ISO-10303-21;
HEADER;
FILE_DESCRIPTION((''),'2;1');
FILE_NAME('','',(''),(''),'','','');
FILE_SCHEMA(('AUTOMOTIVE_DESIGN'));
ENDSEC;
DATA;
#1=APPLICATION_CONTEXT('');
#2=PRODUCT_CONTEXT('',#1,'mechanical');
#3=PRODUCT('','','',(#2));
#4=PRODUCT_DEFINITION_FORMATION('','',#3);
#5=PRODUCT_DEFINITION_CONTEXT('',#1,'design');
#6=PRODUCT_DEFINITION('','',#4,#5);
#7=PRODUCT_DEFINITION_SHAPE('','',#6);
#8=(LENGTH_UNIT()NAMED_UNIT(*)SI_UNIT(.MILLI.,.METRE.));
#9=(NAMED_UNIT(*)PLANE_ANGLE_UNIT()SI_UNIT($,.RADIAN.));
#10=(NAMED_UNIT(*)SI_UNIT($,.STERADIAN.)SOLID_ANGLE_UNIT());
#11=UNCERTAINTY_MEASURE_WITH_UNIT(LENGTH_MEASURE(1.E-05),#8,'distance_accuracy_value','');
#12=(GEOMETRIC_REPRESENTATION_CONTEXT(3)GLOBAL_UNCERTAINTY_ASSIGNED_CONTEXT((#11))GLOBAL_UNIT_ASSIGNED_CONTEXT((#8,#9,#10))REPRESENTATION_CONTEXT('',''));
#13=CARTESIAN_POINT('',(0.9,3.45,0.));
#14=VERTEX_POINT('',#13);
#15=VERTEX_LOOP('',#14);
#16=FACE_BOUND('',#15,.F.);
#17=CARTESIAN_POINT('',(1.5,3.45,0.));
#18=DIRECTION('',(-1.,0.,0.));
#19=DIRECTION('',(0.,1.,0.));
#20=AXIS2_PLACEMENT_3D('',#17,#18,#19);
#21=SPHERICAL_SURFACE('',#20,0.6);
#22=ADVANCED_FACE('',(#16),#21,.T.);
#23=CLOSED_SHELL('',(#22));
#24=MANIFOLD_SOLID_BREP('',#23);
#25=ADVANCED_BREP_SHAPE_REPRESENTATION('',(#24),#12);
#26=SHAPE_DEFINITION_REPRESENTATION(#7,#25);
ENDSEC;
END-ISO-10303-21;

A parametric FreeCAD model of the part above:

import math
import FreeCAD as App
import Part
import Sketcher
Q = App.Units.Quantity

doc = App.newDocument("Part")
body = doc.addObject("PartDesign::Body", "Body")

sketch1 = doc.addObject("Sketcher::SketchObject", "Sketch")
body.addObject(sketch1)
sketch1.AttachmentSupport = (doc.XY_Plane, [""])
sketch1.MapMode = "FlatFace"
sketch1.addGeometry([
    Part.LineSegment(App.Vector(0.9, 3.5, 0), App.Vector(2.1, 3.5, 0)),
    Part.ArcOfCircle(Part.Circle(App.Vector(1.5, 3.5, 0), App.Vector(0, 0, 1), 0.6), math.radians(0), math.radians(180)),
], False)
sketch1.addGeometry(Part.LineSegment(App.Vector(0.9, 3.5, 0), App.Vector(2.1, 3.5, 0)), True)
sketch1.addConstraint([
    Sketcher.Constraint("Coincident", 0, 1, 1, 2),
    Sketcher.Constraint("Coincident", 1, 1, 0, 2),
    Sketcher.Constraint("Horizontal", 0),
    Sketcher.Constraint("Horizontal", 2),
    Sketcher.Constraint("Coincident", 2, 1, 0, 1),
    Sketcher.Constraint("Horizontal", 1, 3, 0, 1),
    Sketcher.Constraint("Equal", 0, 2),
    Sketcher.Constraint("Radius", 1, Q("0.6 mm")),
    Sketcher.Constraint("DistanceX", -1, 1, 1, 3, Q("1.5 mm")),
    Sketcher.Constraint("DistanceY", -1, 1, 1, 3, Q("3.45 mm")),
])
revolution = doc.addObject("PartDesign::Revolution", "Revolution")
body.addObject(revolution)
revolution.Profile = sketch1
revolution.ReferenceAxis = (sketch1, ["Axis0"])
revolution.Angle = 360

doc.recompute()
